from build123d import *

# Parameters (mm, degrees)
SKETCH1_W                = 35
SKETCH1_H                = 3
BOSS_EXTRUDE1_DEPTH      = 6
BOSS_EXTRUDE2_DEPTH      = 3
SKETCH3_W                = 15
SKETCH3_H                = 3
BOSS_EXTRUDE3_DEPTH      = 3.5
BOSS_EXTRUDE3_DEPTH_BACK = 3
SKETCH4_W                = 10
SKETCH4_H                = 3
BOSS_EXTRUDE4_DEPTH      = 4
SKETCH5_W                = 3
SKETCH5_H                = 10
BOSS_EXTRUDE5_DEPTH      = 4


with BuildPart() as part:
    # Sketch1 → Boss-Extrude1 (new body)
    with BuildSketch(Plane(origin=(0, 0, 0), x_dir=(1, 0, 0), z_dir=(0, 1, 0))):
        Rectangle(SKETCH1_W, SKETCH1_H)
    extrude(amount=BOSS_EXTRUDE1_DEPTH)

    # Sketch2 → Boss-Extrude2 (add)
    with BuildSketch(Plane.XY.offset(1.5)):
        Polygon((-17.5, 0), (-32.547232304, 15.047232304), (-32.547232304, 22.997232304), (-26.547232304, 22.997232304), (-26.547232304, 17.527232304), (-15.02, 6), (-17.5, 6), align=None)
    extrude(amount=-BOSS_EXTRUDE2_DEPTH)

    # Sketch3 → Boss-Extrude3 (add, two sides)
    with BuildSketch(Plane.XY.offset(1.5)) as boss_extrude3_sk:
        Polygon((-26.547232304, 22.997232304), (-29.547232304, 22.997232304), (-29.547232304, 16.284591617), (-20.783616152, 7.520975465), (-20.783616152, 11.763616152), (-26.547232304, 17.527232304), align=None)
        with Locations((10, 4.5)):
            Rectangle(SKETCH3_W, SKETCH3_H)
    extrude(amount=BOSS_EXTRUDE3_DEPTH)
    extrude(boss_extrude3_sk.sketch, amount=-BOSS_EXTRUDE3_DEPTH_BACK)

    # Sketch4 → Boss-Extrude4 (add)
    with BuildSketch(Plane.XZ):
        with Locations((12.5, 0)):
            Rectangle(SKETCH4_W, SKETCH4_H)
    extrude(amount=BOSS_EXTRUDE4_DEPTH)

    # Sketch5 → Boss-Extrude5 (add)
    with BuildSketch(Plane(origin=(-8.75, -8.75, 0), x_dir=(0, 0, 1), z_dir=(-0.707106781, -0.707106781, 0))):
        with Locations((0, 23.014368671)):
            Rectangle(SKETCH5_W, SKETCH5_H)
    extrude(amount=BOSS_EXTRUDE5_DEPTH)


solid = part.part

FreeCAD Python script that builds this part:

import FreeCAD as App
import Part
import Sketcher
Q = App.Units.Quantity

doc = App.newDocument("Part")
params = doc.addObject("Spreadsheet::Sheet", "Params")
for row, (alias, value) in enumerate([
    ("sketch1_width", "35 mm"),
    ("sketch1_height", "3 mm"),
    ("pad1_length", "6 mm"),
    ("sketch2_width", "6 mm"),
    ("sketch2_width2", "2.48 mm"),
    ("sketch2_height", "5.47 mm"),
    ("sketch2_length", "21.28 mm"),
    ("pad2_length", "3 mm"),
    ("sketch3_width", "3 mm"),
    ("sketch3_width2", "15 mm"),
    ("sketch3_height", "5.47 mm"),
    ("pad3_length", "3.5 mm"),
    ("pad3_length2", "3 mm"),
    ("sketch4_width", "10 mm"),
    ("sketch4_height", "3 mm"),
    ("pad4_length", "4 mm"),
    ("sketch5_width", "3 mm"),
    ("sketch5_height", "10 mm"),
    ("pad5_length", "4 mm"),
], start=1):
    params.set(f"A{row}", alias)
    params.set(f"B{row}", "=" + value)
    params.setAlias(f"B{row}", alias)

body = doc.addObject("PartDesign::Body", "Body")

sketch1 = body.newObject("Sketcher::SketchObject", "Sketch")
sketch1.AttachmentSupport = (doc.getObject("XZ_Plane"), [""])
sketch1.MapMode = "FlatFace"
sketch1.addGeometry([
    Part.LineSegment(App.Vector(-17.5, -1.5, 0), App.Vector(-17.5, 1.5, 0)),
    Part.LineSegment(App.Vector(-17.5, 1.5, 0), App.Vector(17.5, 1.5, 0)),
    Part.LineSegment(App.Vector(17.5, 1.5, 0), App.Vector(17.5, -1.5, 0)),
    Part.LineSegment(App.Vector(17.5, -1.5, 0), App.Vector(-17.5, -1.5, 0)),
], False)
sketch1.addConstraint([
    Sketcher.Constraint("Coincident", 0, 2, 1, 1),
    Sketcher.Constraint("Coincident", 1, 2, 2, 1),
    Sketcher.Constraint("Coincident", 2, 2, 3, 1),
    Sketcher.Constraint("Coincident", 3, 2, 0, 1),
    Sketcher.Constraint("Vertical", 0),
    Sketcher.Constraint("Horizontal", 1),
    Sketcher.Constraint("Vertical", 2),
    Sketcher.Constraint("Horizontal", 3),
    Sketcher.Constraint("Symmetric", 0, 2, 2, 2, -1, 1),
    Sketcher.Constraint("DistanceX", 1, 1, 1, 2, Q("35 mm")),
    Sketcher.Constraint("DistanceY", 0, 1, 0, 2, Q("3 mm")),
])
sketch1.setExpression("Constraints[9]", "Params.sketch1_width")
sketch1.setExpression("Constraints[10]", "Params.sketch1_height")
pad1 = body.newObject("PartDesign::Pad", "Pad")
pad1.Profile = sketch1
pad1.setExpression("Length", "Params.pad1_length")
pad1.Reversed = True

sketch2 = body.newObject("Sketcher::SketchObject", "Sketch001")
sketch2.AttachmentSupport = (doc.getObject("XY_Plane"), [""])
sketch2.MapMode = "FlatFace"
sketch2.AttachmentOffset = App.Placement(App.Vector(0, 0, 1.5), App.Rotation())
sketch2.addGeometry([
    Part.LineSegment(App.Vector(-32.5, 15, 0), App.Vector(-17.5, 0, 0)),
    Part.LineSegment(App.Vector(-17.5, 0, 0), App.Vector(-17.5, 6, 0)),
    Part.LineSegment(App.Vector(-17.5, 6, 0), App.Vector(-15, 6, 0)),
    Part.LineSegment(App.Vector(-15, 6, 0), App.Vector(-26.5, 17.5, 0)),
    Part.LineSegment(App.Vector(-26.5, 17.5, 0), App.Vector(-26.5, 23, 0)),
    Part.LineSegment(App.Vector(-26.5, 23, 0), App.Vector(-32.5, 23, 0)),
    Part.LineSegment(App.Vector(-32.5, 23, 0), App.Vector(-32.5, 15, 0)),
], False)
sketch2.addConstraint([
    Sketcher.Constraint("Coincident", 0, 2, 1, 1),
    Sketcher.Constraint("Coincident", 1, 2, 2, 1),
    Sketcher.Constraint("Coincident", 2, 2, 3, 1),
    Sketcher.Constraint("Coincident", 3, 2, 4, 1),
    Sketcher.Constraint("Coincident", 4, 2, 5, 1),
    Sketcher.Constraint("Coincident", 5, 2, 6, 1),
    Sketcher.Constraint("Coincident", 6, 2, 0, 1),
    Sketcher.Constraint("Vertical", 1),
    Sketcher.Constraint("Horizontal", 2),
    Sketcher.Constraint("Vertical", 4),
    Sketcher.Constraint("Horizontal", 5),
    Sketcher.Constraint("Vertical", 6),
    Sketcher.Constraint("PointOnObject", 0, 2, -1),
    Sketcher.Constraint("Parallel", 0, 3),
    Sketcher.Constraint("Equal", 5, 1),
    Sketcher.Constraint("DistanceX", 5, 2, 5, 1, Q("6 mm")),
    Sketcher.Constraint("Angle", 0, Q("-45 deg")),
    Sketcher.Constraint("DistanceX", 2, 1, 2, 2, Q("2.48 mm")),
    Sketcher.Constraint("DistanceY", 4, 1, 4, 2, Q("5.47 mm")),
    Sketcher.Constraint("DistanceX", 0, 2, -1, 1, Q("17.5 mm")),
    Sketcher.Constraint("Distance", 0, Q("21.28 mm")),
])
sketch2.setExpression("Constraints[15]", "Params.sketch2_width")
sketch2.setExpression("Constraints[17]", "Params.sketch2_width2")
sketch2.setExpression("Constraints[18]", "Params.sketch2_height")
sketch2.setExpression("Constraints[20]", "Params.sketch2_length")
pad2 = body.newObject("PartDesign::Pad", "Pad001")
pad2.Profile = sketch2
pad2.setExpression("Length", "Params.pad2_length")
pad2.Reversed = True

sketch3 = body.newObject("Sketcher::SketchObject", "Sketch002")
sketch3.AttachmentSupport = (doc.getObject("XY_Plane"), [""])
sketch3.MapMode = "FlatFace"
sketch3.AttachmentOffset = App.Placement(App.Vector(0, 0, 1.5), App.Rotation())
sketch3.addGeometry([
    Part.LineSegment(App.Vector(-26.5, 23, 0), App.Vector(-29.5, 23, 0)),
    Part.LineSegment(App.Vector(-29.5, 23, 0), App.Vector(-29.5, 16.3, 0)),
    Part.LineSegment(App.Vector(-29.5, 16.3, 0), App.Vector(-20.8, 7.5, 0)),
    Part.LineSegment(App.Vector(-20.8, 7.5, 0), App.Vector(-20.8, 11.8, 0)),
    Part.LineSegment(App.Vector(-20.8, 11.8, 0), App.Vector(-26.5, 17.5, 0)),
    Part.LineSegment(App.Vector(-26.5, 17.5, 0), App.Vector(-26.5, 23, 0)),
    Part.LineSegment(App.Vector(2.5, 6, 0), App.Vector(2.5, 3, 0)),
    Part.LineSegment(App.Vector(2.5, 3, 0), App.Vector(17.5, 3, 0)),
    Part.LineSegment(App.Vector(17.5, 3, 0), App.Vector(17.5, 6, 0)),
    Part.LineSegment(App.Vector(17.5, 6, 0), App.Vector(2.5, 6, 0)),
], False)
sketch3.addConstraint([
    Sketcher.Constraint("Coincident", 0, 2, 1, 1),
    Sketcher.Constraint("Coincident", 1, 2, 2, 1),
    Sketcher.Constraint("Coincident", 2, 2, 3, 1),
    Sketcher.Constraint("Coincident", 3, 2, 4, 1),
    Sketcher.Constraint("Coincident", 4, 2, 5, 1),
    Sketcher.Constraint("Coincident", 5, 2, 0, 1),
    Sketcher.Constraint("Coincident", 6, 2, 7, 1),
    Sketcher.Constraint("Coincident", 7, 2, 8, 1),
    Sketcher.Constraint("Coincident", 8, 2, 9, 1),
    Sketcher.Constraint("Coincident", 9, 2, 6, 1),
    Sketcher.Constraint("Horizontal", 0),
    Sketcher.Constraint("Vertical", 1),
    Sketcher.Constraint("Vertical", 3),
    Sketcher.Constraint("Vertical", 5),
    Sketcher.Constraint("Vertical", 6),
    Sketcher.Constraint("Horizontal", 7),
    Sketcher.Constraint("Vertical", 8),
    Sketcher.Constraint("Horizontal", 9),
    Sketcher.Constraint("Parallel", 2, 4),
    Sketcher.Constraint("Equal", 0, 6),
    Sketcher.Constraint("DistanceX", 0, 2, 0, 1, Q("3 mm")),
    Sketcher.Constraint("DistanceX", 7, 1, 7, 2, Q("15 mm")),
    Sketcher.Constraint("Angle", 2, Q("-45 deg")),
    Sketcher.Constraint("DistanceY", -1, 1, 6, 2, Q("3 mm")),
    Sketcher.Constraint("DistanceY", 5, 1, 5, 2, Q("5.47 mm")),
    Sketcher.Constraint("DistanceX", -1, 1, 6, 2, Q("2.5 mm")),
    Sketcher.Constraint("DistanceY", 1, 2, 1, 1, Q("6.712641 mm")),
    Sketcher.Constraint("DistanceY", -1, 1, 1, 2, Q("16.284592 mm")),
    Sketcher.Constraint("Distance", 2, Q("12.393625 mm")),
    Sketcher.Constraint("DistanceX", 0, 2, -1, 1, Q("29.547232 mm")),
])
sketch3.setExpression("Constraints[20]", "Params.sketch3_width")
sketch3.setExpression("Constraints[21]", "Params.sketch3_width2")
sketch3.setExpression("Constraints[24]", "Params.sketch3_height")
pad3 = body.newObject("PartDesign::Pad", "Pad002")
pad3.Profile = sketch3
pad3.Type = "TwoLengths"
pad3.setExpression("Length", "Params.pad3_length")
pad3.setExpression("Length2", "Params.pad3_length2")

sketch4 = body.newObject("Sketcher::SketchObject", "Sketch003")
sketch4.AttachmentSupport = (doc.getObject("XZ_Plane"), [""])
sketch4.MapMode = "FlatFace"
sketch4.addGeometry([
    Part.LineSegment(App.Vector(7.5, 1.5, 0), App.Vector(7.5, -1.5, 0)),
    Part.LineSegment(App.Vector(7.5, -1.5, 0), App.Vector(17.5, -1.5, 0)),
    Part.LineSegment(App.Vector(17.5, -1.5, 0), App.Vector(17.5, 1.5, 0)),
    Part.LineSegment(App.Vector(17.5, 1.5, 0), App.Vector(7.5, 1.5, 0)),
], False)
sketch4.addConstraint([
    Sketcher.Constraint("Coincident", 0, 2, 1, 1),
    Sketcher.Constraint("Coincident", 1, 2, 2, 1),
    Sketcher.Constraint("Coincident", 2, 2, 3, 1),
    Sketcher.Constraint("Coincident", 3, 2, 0, 1),
    Sketcher.Constraint("Vertical", 0),
    Sketcher.Constraint("Horizontal", 1),
    Sketcher.Constraint("Vertical", 2),
    Sketcher.Constraint("Horizontal", 3),
    Sketcher.Constraint("DistanceX", 1, 1, 1, 2, Q("10 mm")),
    Sketcher.Constraint("DistanceY", 0, 2, 0, 1, Q("3 mm")),
    Sketcher.Constraint("DistanceX", -1, 1, 0, 2, Q("7.5 mm")),
    Sketcher.Constraint("DistanceY", 0, 2, -1, 1, Q("1.5 mm")),
])
sketch4.setExpression("Constraints[8]", "Params.sketch4_width")
sketch4.setExpression("Constraints[9]", "Params.sketch4_height")
pad4 = body.newObject("PartDesign::Pad", "Pad003")
pad4.Profile = sketch4
pad4.setExpression("Length", "Params.pad4_length")

sketch5 = body.newObject("Sketcher::SketchObject", "Sketch004")
sketch5.Placement = App.Placement(App.Vector(-8.75, -8.75, 0), App.Rotation(App.Vector(0, 0, 1), App.Vector(-0.707106781, 0.707106781, 0), App.Vector(-0.707106781, -0.707106781, 0), "ZXY"))
sketch5.addGeometry([
    Part.LineSegment(App.Vector(-1.5, 28, 0), App.Vector(-1.5, 18, 0)),
    Part.LineSegment(App.Vector(-1.5, 18, 0), App.Vector(1.5, 18, 0)),
    Part.LineSegment(App.Vector(1.5, 18, 0), App.Vector(1.5, 28, 0)),
    Part.LineSegment(App.Vector(1.5, 28, 0), App.Vector(-1.5, 28, 0)),
], False)
sketch5.addConstraint([
    Sketcher.Constraint("Coincident", 0, 2, 1, 1),
    Sketcher.Constraint("Coincident", 1, 2, 2, 1),
    Sketcher.Constraint("Coincident", 2, 2, 3, 1),
    Sketcher.Constraint("Coincident", 3, 2, 0, 1),
    Sketcher.Constraint("Vertical", 0),
    Sketcher.Constraint("Horizontal", 1),
    Sketcher.Constraint("Vertical", 2),
    Sketcher.Constraint("Horizontal", 3),
    Sketcher.Constraint("DistanceX", 1, 1, 1, 2, Q("3 mm")),
    Sketcher.Constraint("DistanceY", 0, 2, 0, 1, Q("10 mm")),
    Sketcher.Constraint("DistanceX", 0, 2, -1, 1, Q("1.5 mm")),
    Sketcher.Constraint("DistanceY", -1, 1, 0, 2, Q("18.014369 mm")),
])
sketch5.setExpression("Constraints[8]", "Params.sketch5_width")
sketch5.setExpression("Constraints[9]", "Params.sketch5_height")
pad5 = body.newObject("PartDesign::Pad", "Pad004")
pad5.Profile = sketch5
pad5.setExpression("Length", "Params.pad5_length")

doc.recompute()
